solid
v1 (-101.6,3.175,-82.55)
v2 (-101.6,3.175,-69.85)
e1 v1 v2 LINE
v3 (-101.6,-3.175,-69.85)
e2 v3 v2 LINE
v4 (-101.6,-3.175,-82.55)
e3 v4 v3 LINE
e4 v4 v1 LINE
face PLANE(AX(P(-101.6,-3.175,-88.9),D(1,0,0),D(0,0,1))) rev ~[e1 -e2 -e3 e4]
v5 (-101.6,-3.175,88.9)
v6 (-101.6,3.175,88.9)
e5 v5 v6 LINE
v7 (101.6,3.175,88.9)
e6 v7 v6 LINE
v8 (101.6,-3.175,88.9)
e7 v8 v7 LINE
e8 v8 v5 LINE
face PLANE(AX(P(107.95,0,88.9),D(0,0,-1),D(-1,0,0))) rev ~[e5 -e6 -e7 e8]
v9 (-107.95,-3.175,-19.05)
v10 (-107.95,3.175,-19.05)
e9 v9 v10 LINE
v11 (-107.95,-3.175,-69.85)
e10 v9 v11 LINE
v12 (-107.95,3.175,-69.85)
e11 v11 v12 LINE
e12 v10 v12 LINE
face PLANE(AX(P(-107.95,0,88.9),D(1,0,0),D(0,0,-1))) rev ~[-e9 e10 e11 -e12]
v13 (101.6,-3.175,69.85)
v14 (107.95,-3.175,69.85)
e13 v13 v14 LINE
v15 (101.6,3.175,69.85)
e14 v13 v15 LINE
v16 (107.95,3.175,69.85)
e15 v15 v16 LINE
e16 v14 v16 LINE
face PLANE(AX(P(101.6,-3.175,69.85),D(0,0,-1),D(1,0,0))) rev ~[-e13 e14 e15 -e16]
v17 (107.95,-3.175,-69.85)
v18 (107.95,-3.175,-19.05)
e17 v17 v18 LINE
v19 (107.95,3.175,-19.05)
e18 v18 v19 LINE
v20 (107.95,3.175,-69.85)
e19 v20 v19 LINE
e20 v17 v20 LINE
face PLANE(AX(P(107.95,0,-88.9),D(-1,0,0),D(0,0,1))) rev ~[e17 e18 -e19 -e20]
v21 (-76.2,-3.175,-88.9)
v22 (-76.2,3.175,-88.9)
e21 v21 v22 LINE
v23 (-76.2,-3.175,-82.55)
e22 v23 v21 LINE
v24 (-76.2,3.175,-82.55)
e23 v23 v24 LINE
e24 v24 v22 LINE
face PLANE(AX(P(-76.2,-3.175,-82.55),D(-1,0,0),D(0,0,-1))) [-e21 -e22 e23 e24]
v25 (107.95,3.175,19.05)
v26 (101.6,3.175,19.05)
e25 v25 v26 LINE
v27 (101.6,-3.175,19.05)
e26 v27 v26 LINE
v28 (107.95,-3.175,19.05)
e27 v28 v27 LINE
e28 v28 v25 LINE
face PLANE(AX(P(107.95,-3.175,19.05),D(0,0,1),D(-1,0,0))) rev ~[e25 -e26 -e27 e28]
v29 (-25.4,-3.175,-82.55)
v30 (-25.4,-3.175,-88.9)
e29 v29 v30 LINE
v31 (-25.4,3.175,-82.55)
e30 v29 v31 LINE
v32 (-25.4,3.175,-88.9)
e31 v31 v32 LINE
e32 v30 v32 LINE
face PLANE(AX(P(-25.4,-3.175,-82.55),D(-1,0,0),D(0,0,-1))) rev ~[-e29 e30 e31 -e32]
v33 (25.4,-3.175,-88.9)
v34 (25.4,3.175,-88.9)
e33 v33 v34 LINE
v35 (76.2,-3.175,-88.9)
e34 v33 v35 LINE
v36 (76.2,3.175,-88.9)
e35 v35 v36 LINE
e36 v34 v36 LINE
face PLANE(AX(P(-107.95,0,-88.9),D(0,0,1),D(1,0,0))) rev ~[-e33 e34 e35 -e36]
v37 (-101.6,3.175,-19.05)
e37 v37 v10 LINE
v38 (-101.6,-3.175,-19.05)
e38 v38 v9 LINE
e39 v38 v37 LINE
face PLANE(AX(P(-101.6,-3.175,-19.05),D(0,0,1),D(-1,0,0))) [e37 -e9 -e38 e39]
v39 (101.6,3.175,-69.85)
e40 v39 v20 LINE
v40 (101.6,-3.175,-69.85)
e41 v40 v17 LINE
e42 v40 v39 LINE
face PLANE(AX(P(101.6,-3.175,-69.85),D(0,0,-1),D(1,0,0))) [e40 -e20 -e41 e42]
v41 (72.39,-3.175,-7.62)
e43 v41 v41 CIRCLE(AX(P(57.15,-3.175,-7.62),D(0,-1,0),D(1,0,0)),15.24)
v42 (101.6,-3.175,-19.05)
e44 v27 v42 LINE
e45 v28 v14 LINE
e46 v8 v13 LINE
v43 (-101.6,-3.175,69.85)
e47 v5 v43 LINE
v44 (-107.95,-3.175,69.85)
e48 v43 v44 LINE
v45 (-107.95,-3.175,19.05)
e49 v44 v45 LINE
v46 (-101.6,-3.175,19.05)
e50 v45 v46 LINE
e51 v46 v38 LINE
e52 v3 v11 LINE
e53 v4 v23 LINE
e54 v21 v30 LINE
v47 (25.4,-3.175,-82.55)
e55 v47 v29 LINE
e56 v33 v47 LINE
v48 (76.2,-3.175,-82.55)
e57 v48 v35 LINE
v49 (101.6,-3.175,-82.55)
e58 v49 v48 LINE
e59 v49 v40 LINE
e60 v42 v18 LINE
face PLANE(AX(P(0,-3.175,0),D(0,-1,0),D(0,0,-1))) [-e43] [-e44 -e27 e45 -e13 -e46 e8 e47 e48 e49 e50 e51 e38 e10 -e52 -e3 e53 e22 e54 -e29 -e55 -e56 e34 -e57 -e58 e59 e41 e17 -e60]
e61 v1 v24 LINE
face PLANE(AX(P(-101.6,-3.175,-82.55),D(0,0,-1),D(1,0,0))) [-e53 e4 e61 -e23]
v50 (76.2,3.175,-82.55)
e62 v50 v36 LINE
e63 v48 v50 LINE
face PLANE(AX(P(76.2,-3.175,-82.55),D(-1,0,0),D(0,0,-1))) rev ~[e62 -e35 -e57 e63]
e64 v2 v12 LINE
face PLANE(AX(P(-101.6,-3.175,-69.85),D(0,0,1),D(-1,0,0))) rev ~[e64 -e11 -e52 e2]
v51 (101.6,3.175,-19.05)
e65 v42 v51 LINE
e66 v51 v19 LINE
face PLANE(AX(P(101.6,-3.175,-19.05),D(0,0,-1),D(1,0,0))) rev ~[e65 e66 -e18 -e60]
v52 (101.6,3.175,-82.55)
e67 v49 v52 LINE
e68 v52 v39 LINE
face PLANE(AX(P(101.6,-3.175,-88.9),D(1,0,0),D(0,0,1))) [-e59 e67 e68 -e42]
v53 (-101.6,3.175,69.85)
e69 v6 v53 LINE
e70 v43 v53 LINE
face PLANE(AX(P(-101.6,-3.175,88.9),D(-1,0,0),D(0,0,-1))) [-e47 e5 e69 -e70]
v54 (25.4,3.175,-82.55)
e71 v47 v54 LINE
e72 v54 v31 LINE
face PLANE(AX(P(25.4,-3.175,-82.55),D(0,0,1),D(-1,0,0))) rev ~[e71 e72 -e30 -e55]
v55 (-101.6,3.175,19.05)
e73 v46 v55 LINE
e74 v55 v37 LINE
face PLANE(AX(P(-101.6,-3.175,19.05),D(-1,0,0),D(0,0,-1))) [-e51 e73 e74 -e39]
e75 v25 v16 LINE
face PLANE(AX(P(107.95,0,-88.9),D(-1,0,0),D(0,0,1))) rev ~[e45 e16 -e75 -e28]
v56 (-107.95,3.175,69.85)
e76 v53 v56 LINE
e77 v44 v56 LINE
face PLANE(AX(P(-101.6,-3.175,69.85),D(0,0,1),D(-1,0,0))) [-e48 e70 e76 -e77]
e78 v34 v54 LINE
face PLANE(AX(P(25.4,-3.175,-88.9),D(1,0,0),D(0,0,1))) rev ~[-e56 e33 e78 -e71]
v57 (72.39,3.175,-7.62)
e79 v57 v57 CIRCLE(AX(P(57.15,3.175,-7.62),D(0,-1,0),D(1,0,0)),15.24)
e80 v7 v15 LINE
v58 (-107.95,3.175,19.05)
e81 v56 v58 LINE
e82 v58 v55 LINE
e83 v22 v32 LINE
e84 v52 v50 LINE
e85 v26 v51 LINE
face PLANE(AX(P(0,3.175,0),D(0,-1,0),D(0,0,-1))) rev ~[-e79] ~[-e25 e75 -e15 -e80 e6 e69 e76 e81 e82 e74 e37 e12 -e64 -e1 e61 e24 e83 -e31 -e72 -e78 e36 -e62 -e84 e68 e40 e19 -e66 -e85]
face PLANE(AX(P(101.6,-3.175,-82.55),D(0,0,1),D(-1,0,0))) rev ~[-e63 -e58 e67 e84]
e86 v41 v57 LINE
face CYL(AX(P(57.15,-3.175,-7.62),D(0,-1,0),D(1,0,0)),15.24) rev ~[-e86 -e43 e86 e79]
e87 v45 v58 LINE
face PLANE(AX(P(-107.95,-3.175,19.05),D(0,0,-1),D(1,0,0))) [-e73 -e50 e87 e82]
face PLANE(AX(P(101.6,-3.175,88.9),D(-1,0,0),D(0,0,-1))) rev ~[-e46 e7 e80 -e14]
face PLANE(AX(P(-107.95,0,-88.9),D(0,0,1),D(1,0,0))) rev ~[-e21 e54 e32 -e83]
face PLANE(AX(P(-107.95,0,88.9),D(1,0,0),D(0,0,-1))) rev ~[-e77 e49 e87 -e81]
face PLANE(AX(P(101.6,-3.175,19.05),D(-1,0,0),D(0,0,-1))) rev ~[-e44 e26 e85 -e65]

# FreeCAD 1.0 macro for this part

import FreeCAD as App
import Part
import Sketcher
from FreeCAD import Vector
Q = App.Units.Quantity


def add_polygon(sketch, points):
    """Adds a closed chain of lines whose ends are joined by coincident constraints."""
    first, n = sketch.GeometryCount, len(points)
    for a, b in zip(points, points[1:] + points[:1]):
        sketch.addGeometry(Part.LineSegment(App.Vector(*a, 0), App.Vector(*b, 0)), False)
    for i in range(n):
        sketch.addConstraint(Sketcher.Constraint("Coincident", first + i, 2, first + (i + 1) % n, 1))

doc = App.newDocument("Part")
body = doc.addObject("PartDesign::Body", "Body")

# Sketch on XZ plane
sketch1 = doc.addObject("Sketcher::SketchObject", "Sketch")
body.addObject(sketch1)
sketch1.AttachmentSupport = (doc.XZ_Plane, [""])
sketch1.MapMode = "FlatFace"
add_polygon(sketch1, [(-108, 89), (-108, -89), (108, -89), (108, 89)])  # lines 0-3
sketch1.addConstraint([
    Sketcher.Constraint("Vertical", 0),
    Sketcher.Constraint("Horizontal", 1),
    Sketcher.Constraint("Vertical", 2),
    Sketcher.Constraint("Horizontal", 3),
    Sketcher.Constraint("Symmetric", 0, 2, 2, 2, -1, 1),
    Sketcher.Constraint("DistanceY", 0, 2, 0, 1, Q("7 in")),
    Sketcher.Constraint("DistanceX", 0, 2, -1, 1, Q("4.25 in")),
])
pad1 = doc.addObject("PartDesign::Pad", "Pad")
body.addObject(pad1)
pad1.Profile = sketch1
pad1.Length = Q("0.25 in")
pad1.Midplane = True

# Sketch on XZ plane
sketch2 = doc.addObject("Sketcher::SketchObject", "Sketch001")
body.addObject(sketch2)
sketch2.AttachmentSupport = (doc.XZ_Plane, [""])
sketch2.MapMode = "FlatFace"
sketch2.AttachmentOffset = App.Placement(Vector(0, 0, 0.125 * 25.4), App.Rotation())
add_polygon(sketch2, [(108, 70), (108, 89), (102, 89), (102, 70)])  # lines 0-3
add_polygon(sketch2, [(108, -19), (108, 19), (102, 19), (102, -19)])  # lines 4-7
add_polygon(sketch2, [(102, -89), (108, -89), (108, -70), (102, -70)])  # lines 8-11
add_polygon(sketch2, [(-102, 89), (-108, 89), (-108, 70), (-102, 70)])  # lines 12-15
add_polygon(sketch2, [(-102, 19), (-108, 19), (-108, -19), (-102, -19)])  # lines 16-19
add_polygon(sketch2, [(-108, -70), (-108, -89), (-102, -89), (-102, -70)])  # lines 20-23
sketch2.addConstraint([
    Sketcher.Constraint("Vertical", 0),
    Sketcher.Constraint("Horizontal", 1),
    Sketcher.Constraint("Vertical", 2),
    Sketcher.Constraint("Horizontal", 3),
    Sketcher.Constraint("Vertical", 4),
    Sketcher.Constraint("Horizontal", 5),
    Sketcher.Constraint("Vertical", 6),
    Sketcher.Constraint("Horizontal", 7),
    Sketcher.Constraint("Horizontal", 8),
    Sketcher.Constraint("Vertical", 9),
    Sketcher.Constraint("Horizontal", 10),
    Sketcher.Constraint("Vertical", 11),
    Sketcher.Constraint("Horizontal", 12),
    Sketcher.Constraint("Vertical", 13),
    Sketcher.Constraint("Horizontal", 14),
    Sketcher.Constraint("Vertical", 15),
    Sketcher.Constraint("Horizontal", 16),
    Sketcher.Constraint("Vertical", 17),
    Sketcher.Constraint("Horizontal", 18),
    Sketcher.Constraint("Vertical", 19),
    Sketcher.Constraint("Vertical", 20),
    Sketcher.Constraint("Horizontal", 21),
    Sketcher.Constraint("Vertical", 22),
    Sketcher.Constraint("Horizontal", 23),
    Sketcher.Constraint("Symmetric", 8, 2, 12, 2, -1, 1),
    Sketcher.Constraint("Symmetric", 10, 2, 14, 2, -1, 1),
    Sketcher.Constraint("Symmetric", 7, 2, 16, 2, -1, 1),
    Sketcher.Constraint("Symmetric", 5, 2, 18, 2, -1, 1),
    Sketcher.Constraint("Symmetric", 0, 2, 20, 2, -1, 1),
    Sketcher.Constraint("Symmetric", 2, 2, 22, 2, -1, 1),
    Sketcher.Constraint("Symmetric", 0, 2, 12, 2, -2),
    Sketcher.Constraint("Symmetric", 2, 2, 14, 2, -2),
    Sketcher.Constraint("Horizontal", 5, 2, 16, 2),
    Sketcher.Constraint("Vertical", 3, 2, 4, 2),
    Sketcher.Constraint("Vertical", 2, 2, 5, 2),
    Sketcher.Constraint("DistanceX", -1, 1, 0, 2, Q("4.25 in")),
    Sketcher.Constraint("DistanceY", 6, 2, 1, 2, Q("4.25 in")),
    Sketcher.Constraint("DistanceY", 4, 1, 4, 2, Q("1.5 in")),
    Sketcher.Constraint("DistanceX", -1, 1, 1, 2, Q("4 in")),
    Sketcher.Constraint("DistanceY", 4, 2, 3, 2, Q("2 in")),
])
pocket1 = doc.addObject("PartDesign::Pocket", "Pocket")
body.addObject(pocket1)
pocket1.Profile = sketch2
pocket1.Type = "ThroughAll"

# Sketch on XZ plane
sketch3 = doc.addObject("Sketcher::SketchObject", "Sketch002")
body.addObject(sketch3)
sketch3.AttachmentSupport = (doc.XZ_Plane, [""])
sketch3.MapMode = "FlatFace"
sketch3.AttachmentOffset = App.Placement(Vector(0, 0, 0.125 * 25.4), App.Rotation())
add_polygon(sketch3, [(102, -89), (102, -83), (76, -83), (76, -89)])  # lines 0-3
add_polygon(sketch3, [(-76, -83), (-102, -83), (-102, -89), (-76, -89)])  # lines 4-7
add_polygon(sketch3, [(-25, -83), (-25, -89), (25, -89), (25, -83)])  # lines 8-11
sketch3.addConstraint([
    Sketcher.Constraint("Vertical", 0),
    Sketcher.Constraint("Horizontal", 1),
    Sketcher.Constraint("Vertical", 2),
    Sketcher.Constraint("Horizontal", 3),
    Sketcher.Constraint("Horizontal", 4),
    Sketcher.Constraint("Vertical", 5),
    Sketcher.Constraint("Horizontal", 6),
    Sketcher.Constraint("Vertical", 7),
    Sketcher.Constraint("Vertical", 8),
    Sketcher.Constraint("Horizontal", 9),
    Sketcher.Constraint("Vertical", 10),
    Sketcher.Constraint("Horizontal", 11),
    Sketcher.Constraint("Symmetric", 0, 2, 4, 2, -2),
    Sketcher.Constraint("Symmetric", 2, 2, 6, 2, -2),
    Sketcher.Constraint("Horizontal", 6, 2, 8, 2),
    Sketcher.Constraint("Horizontal", 7, 2, 10, 2),
    Sketcher.Constraint("DistanceX", -1, 1, 0, 2, Q("4 in")),
    Sketcher.Constraint("DistanceX", -1, 1, 1, 2, Q("3 in")),
    Sketcher.Constraint("DistanceX", 5, 2, 8, 2, Q("3 in")),
    Sketcher.Constraint("DistanceX", 9, 2, 3, 2, Q("3 in")),
    Sketcher.Constraint("DistanceY", 0, 1, 0, 2, Q("0.25 in")),
    Sketcher.Constraint("DistanceY", 2, 2, -1, 1, Q("3.5 in")),
])
pocket2 = doc.addObject("PartDesign::Pocket", "Pocket001")
body.addObject(pocket2)
pocket2.Profile = sketch3
pocket2.Type = "ThroughAll"

# Sketch on XZ plane
sketch4 = doc.addObject("Sketcher::SketchObject", "Sketch003")
body.addObject(sketch4)
sketch4.AttachmentSupport = (doc.XZ_Plane, [""])
sketch4.MapMode = "FlatFace"
sketch4.AttachmentOffset = App.Placement(Vector(0, 0, 0.125 * 25.4), App.Rotation())
sketch4.addGeometry(Part.Circle(Vector(57, -8, 0), Vector(0, 0, 1), 15), False)
sketch4.addConstraint([
    Sketcher.Constraint("Diameter", 0, Q("1.2 in")),
    Sketcher.Constraint("DistanceX", -1, 1, 0, 3, Q("2.25 in")),
    Sketcher.Constraint("DistanceY", 0, 3, -1, 1, Q("0.3 in")),
])
pocket3 = doc.addObject("PartDesign::Pocket", "Pocket002")
body.addObject(pocket3)
pocket3.Profile = sketch4
pocket3.Type = "ThroughAll"

doc.recompute()
